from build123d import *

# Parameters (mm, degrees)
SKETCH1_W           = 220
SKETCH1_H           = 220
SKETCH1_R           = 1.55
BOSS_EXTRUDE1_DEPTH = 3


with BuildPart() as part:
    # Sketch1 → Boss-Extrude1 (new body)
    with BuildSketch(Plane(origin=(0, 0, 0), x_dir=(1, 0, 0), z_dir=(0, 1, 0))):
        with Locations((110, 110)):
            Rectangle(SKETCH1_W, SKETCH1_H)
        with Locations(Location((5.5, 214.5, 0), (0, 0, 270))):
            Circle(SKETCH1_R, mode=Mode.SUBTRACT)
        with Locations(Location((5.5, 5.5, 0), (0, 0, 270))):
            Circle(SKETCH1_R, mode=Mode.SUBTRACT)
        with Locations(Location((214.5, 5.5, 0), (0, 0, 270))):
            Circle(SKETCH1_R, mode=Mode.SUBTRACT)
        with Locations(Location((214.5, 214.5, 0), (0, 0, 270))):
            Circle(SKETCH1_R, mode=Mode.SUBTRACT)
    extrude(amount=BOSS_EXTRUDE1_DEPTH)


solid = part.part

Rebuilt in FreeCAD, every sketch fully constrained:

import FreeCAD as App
import Part
import Sketcher
from FreeCAD import Vector

doc = App.newDocument("Part")
body = doc.addObject("PartDesign::Body", "Body")

# Sketch on XZ plane
sketch1 = body.newObject("Sketcher::SketchObject", "Sketch")
sketch1.AttachmentSupport = (doc.getObject("XZ_Plane"), [""])
sketch1.MapMode = "FlatFace"
sketch1.addGeometry([
    Part.LineSegment(Vector(0, -220, 0), Vector(0, 0, 0)),  # 0
    Part.LineSegment(Vector(0, 0, 0), Vector(220, 0, 0)),  # 1
    Part.LineSegment(Vector(220, 0, 0), Vector(220, -220, 0)),  # 2
    Part.LineSegment(Vector(220, -220, 0), Vector(0, -220, 0)),  # 3
    Part.Circle(Vector(5.5, -5.5, 0), Vector(0, 0, 1), 1.55),  # 4
    Part.Circle(Vector(214.5, -5.5, 0), Vector(0, 0, 1), 1.55),  # 5
    Part.Circle(Vector(5.5, -214.5, 0), Vector(0, 0, 1), 1.55),  # 6
    Part.Circle(Vector(214.5, -214.5, 0), Vector(0, 0, 1), 1.55),  # 7
], False)
sketch1.addConstraint([
    Sketcher.Constraint("Coincident", 0, 2, 1, 1),
    Sketcher.Constraint("Coincident", 1, 2, 2, 1),
    Sketcher.Constraint("Coincident", 2, 2, 3, 1),
    Sketcher.Constraint("Coincident", 3, 2, 0, 1),
    Sketcher.Constraint("Vertical", 0),
    Sketcher.Constraint("Horizontal", 1),
    Sketcher.Constraint("Vertical", 2),
    Sketcher.Constraint("Horizontal", 3),
    Sketcher.Constraint("Coincident", 0, 2, -1, 1),
    Sketcher.Constraint("Equal", 4, 5),
    Sketcher.Constraint("Equal", 5, 6),
    Sketcher.Constraint("Equal", 6, 7),
    Sketcher.Constraint("Horizontal", 4, 3, 5, 3),
    Sketcher.Constraint("Horizontal", 6, 3, 7, 3),
    Sketcher.Constraint("Vertical", 4, 3, 6, 3),
    Sketcher.Constraint("Vertical", 5, 3, 7, 3),
    Sketcher.Constraint("Equal", 3, 0),
    Sketcher.Constraint("Diameter", 4, 3.1),
    Sketcher.Constraint("DistanceX", 1, 1, 1, 2, 220.0),
    Sketcher.Constraint("DistanceX", 4, 3, 5, 3, 209.0),
    Sketcher.Constraint("DistanceY", 6, 3, 4, 3, 209.0),
    Sketcher.Constraint("DistanceX", -1, 1, 4, 3, 5.5),
    Sketcher.Constraint("DistanceY", 4, 3, -1, 1, 5.5),
])
pad1 = body.newObject("PartDesign::Pad", "Pad")
pad1.Profile = sketch1
pad1.Length = 3
pad1.Reversed = True

doc.recompute()
